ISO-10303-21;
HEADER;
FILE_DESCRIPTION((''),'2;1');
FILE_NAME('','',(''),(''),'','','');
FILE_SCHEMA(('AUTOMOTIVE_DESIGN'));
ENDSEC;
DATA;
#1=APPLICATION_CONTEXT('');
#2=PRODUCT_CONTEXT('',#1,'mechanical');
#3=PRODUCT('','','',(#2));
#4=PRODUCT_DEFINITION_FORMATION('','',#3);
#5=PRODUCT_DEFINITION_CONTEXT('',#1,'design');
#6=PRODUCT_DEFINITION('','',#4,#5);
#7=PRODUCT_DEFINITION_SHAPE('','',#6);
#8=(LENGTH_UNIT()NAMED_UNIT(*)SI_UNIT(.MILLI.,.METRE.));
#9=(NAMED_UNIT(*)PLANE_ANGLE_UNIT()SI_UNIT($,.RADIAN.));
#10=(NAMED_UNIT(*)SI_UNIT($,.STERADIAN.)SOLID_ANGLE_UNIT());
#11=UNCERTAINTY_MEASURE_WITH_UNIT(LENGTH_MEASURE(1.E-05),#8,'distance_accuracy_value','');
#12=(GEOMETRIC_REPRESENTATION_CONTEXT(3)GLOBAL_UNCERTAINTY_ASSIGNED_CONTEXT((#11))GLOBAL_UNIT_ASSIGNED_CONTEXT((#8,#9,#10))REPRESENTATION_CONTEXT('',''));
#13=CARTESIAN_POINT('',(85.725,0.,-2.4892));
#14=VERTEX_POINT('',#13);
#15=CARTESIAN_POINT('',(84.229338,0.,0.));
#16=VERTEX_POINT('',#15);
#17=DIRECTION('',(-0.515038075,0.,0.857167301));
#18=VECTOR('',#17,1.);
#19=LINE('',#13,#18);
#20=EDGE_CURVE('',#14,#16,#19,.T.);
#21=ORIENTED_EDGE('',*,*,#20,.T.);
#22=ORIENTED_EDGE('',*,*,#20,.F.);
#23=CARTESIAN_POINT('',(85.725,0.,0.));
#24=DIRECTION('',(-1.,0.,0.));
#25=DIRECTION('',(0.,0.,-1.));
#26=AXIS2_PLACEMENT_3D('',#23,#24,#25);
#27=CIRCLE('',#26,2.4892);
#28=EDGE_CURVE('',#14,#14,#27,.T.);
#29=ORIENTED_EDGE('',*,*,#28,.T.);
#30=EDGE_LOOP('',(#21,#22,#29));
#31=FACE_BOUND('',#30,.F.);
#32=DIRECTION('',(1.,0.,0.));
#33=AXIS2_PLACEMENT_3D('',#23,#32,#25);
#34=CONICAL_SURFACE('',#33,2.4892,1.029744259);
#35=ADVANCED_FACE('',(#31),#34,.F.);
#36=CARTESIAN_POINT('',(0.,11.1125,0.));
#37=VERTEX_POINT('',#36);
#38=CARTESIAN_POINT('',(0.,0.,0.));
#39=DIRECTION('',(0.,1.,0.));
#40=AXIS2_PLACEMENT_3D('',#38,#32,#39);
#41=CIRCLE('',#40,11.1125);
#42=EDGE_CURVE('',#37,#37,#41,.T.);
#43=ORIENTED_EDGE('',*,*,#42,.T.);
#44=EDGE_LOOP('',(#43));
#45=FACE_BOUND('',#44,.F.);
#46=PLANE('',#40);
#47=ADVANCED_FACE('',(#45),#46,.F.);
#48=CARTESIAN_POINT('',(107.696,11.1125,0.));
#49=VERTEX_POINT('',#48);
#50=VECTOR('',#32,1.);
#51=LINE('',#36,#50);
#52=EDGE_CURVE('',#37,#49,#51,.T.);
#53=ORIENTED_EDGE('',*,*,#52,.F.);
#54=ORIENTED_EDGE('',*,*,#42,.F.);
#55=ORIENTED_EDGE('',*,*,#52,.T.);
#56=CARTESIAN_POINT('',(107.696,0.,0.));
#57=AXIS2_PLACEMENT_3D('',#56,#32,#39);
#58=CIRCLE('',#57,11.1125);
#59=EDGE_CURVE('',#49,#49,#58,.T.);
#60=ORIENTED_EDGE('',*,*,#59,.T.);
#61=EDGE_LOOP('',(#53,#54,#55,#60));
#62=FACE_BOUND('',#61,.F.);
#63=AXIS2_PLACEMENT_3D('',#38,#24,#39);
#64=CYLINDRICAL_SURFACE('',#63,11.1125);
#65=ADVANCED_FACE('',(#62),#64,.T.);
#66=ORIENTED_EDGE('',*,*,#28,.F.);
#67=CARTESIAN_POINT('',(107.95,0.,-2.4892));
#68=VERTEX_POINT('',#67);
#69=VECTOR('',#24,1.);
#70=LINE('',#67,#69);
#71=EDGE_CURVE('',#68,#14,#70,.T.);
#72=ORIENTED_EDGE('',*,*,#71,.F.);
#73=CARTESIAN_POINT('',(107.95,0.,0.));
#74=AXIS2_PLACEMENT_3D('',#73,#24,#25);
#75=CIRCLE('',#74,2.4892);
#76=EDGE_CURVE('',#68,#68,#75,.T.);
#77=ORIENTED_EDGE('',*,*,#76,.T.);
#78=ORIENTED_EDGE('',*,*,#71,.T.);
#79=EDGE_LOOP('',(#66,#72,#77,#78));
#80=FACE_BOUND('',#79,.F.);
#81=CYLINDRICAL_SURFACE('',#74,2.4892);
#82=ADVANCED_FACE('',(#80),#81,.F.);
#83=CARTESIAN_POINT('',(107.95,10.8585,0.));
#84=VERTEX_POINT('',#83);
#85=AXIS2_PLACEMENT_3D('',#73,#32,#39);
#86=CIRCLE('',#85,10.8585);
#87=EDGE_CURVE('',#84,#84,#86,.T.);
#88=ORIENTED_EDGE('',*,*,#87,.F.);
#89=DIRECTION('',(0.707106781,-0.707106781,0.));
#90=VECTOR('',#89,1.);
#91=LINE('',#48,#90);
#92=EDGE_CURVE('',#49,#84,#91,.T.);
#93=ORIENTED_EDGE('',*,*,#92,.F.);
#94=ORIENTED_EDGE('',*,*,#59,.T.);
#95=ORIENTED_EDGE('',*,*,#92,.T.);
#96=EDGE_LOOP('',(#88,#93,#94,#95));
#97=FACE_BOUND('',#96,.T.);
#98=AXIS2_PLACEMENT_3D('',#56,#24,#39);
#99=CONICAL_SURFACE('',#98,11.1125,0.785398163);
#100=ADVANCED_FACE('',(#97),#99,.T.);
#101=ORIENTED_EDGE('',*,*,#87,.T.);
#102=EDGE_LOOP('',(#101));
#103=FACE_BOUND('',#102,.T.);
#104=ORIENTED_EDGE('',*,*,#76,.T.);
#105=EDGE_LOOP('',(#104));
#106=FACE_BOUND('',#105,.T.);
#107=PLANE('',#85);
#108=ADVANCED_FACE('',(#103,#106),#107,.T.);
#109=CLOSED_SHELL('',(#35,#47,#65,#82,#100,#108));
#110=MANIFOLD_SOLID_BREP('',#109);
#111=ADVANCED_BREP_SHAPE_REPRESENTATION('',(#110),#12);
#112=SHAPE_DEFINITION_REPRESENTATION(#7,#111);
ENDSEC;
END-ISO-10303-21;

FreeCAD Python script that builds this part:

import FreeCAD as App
import Part
import Sketcher

V = App.Vector
Q = App.Units.Quantity


def edges_at(feature, points):
    """Names of the edges that pass closest to the given points."""
    edges = feature.Shape.Edges
    near = lambda p: min(range(len(edges)), key=lambda i: edges[i].distToShape(Part.Vertex(*p))[0])
    return sorted({f"Edge{near(p) + 1}" for p in points})

doc = App.newDocument("Part")
body = doc.addObject("PartDesign::Body", "Body")

sketch1 = body.newObject("Sketcher::SketchObject", "Sketch")
sketch1.AttachmentSupport = (doc.getObject("YZ_Plane"), [""])
sketch1.MapMode = "FlatFace"
sketch1.addGeometry(Part.Circle(V(0, 0, 0), V(0, 0, 1), 11.1125), False)
sketch1.addConstraint(Sketcher.Constraint("Coincident", 0, 3, -1, 1))
sketch1.addConstraint(Sketcher.Constraint("Diameter", 0, Q("0.875 in")))
pad1 = body.newObject("PartDesign::Pad", "Pad")
pad1.Profile = sketch1
pad1.Length = Q("4.25 in")
doc.recompute()

chamfer = body.newObject("PartDesign::Chamfer", "Chamfer")
chamfer.Base = (pad1, edges_at(pad1, [(107.95, -11.113, 0)]))
chamfer.Size = Q("0.01 in")

sketch2 = body.newObject("Sketcher::SketchObject", "Sketch001")
sketch2.AttachmentSupport = (doc.getObject("YZ_Plane"), [""])
sketch2.MapMode = "FlatFace"
sketch2.AttachmentOffset = App.Placement(V(0, 0, 4.25 * 25.4), App.Rotation())
sketch2.addGeometry(Part.Circle(V(0, 0, 0), V(0, 0, 1), 2.4892), False)
sketch2.addConstraint(Sketcher.Constraint("Coincident", 0, 3, -1, 1))
sketch2.addConstraint(Sketcher.Constraint("Diameter", 0, Q("0.196 in")))
doc.recompute()
hole = body.newObject("PartDesign::Hole", "Hole")
hole.Profile = sketch2
hole.ThreadType = "None"
hole.Diameter = Q("0.196 in")
hole.DepthType = "Dimension"
hole.Depth = Q("0.875 in")
hole.DrillPoint = "Angled"
hole.DrillPointAngle = 118

doc.recompute()
